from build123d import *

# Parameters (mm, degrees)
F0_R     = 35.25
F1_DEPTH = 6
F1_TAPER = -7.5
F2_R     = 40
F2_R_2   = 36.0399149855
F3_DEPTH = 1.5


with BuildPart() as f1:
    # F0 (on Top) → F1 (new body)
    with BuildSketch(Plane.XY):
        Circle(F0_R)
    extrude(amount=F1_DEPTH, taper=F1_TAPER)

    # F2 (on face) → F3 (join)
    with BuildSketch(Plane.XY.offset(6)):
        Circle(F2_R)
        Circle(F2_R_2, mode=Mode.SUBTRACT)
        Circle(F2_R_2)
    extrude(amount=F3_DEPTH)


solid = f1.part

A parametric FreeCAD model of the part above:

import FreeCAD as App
import Part
import Sketcher

V = App.Vector
Q = App.Units.Quantity

doc = App.newDocument("Part")
params = doc.addObject("Spreadsheet::Sheet", "Params")
for row, (alias, value) in enumerate([
    ("sketch1_diameter", "70.5 mm"),
    ("pad1_length", "6 mm"),
    ("pad1_taper", "7.5 deg"),
    ("sketch2_diameter", "80 mm"),
    ("pad2_length", "1.5 mm"),
], start=1):
    params.set(f"A{row}", alias)
    params.set(f"B{row}", "=" + value)
    params.setAlias(f"B{row}", alias)

body = doc.addObject("PartDesign::Body", "Body")

# Sketch on XY plane
sketch1 = body.newObject("Sketcher::SketchObject", "Sketch")
sketch1.AttachmentSupport = (doc.getObject("XY_Plane"), [""])
sketch1.MapMode = "FlatFace"
sketch1.addGeometry(Part.Circle(V(0, 0, 0), V(0, 0, 1), 35), False)
sketch1.addConstraint(Sketcher.Constraint("Coincident", 0, 3, -1, 1))
sketch1.addConstraint(Sketcher.Constraint("Diameter", 0, Q("70.5 mm")))
sketch1.setExpression("Constraints[1]", "Params.sketch1_diameter")
pad1 = body.newObject("PartDesign::Pad", "Pad")
pad1.Profile = sketch1
pad1.setExpression("Length", "Params.pad1_length")
pad1.setExpression("TaperAngle", "Params.pad1_taper")

# Sketch on XY plane
sketch2 = body.newObject("Sketcher::SketchObject", "Sketch001")
sketch2.AttachmentSupport = (doc.getObject("XY_Plane"), [""])
sketch2.MapMode = "FlatFace"
sketch2.AttachmentOffset = App.Placement(V(0, 0, 6), App.Rotation())
sketch2.addGeometry(Part.Circle(V(0, 0, 0), V(0, 0, 1), 40), False)
sketch2.addConstraint(Sketcher.Constraint("Coincident", 0, 3, -1, 1))
sketch2.addConstraint(Sketcher.Constraint("Diameter", 0, Q("80 mm")))
sketch2.setExpression("Constraints[1]", "Params.sketch2_diameter")
pad2 = body.newObject("PartDesign::Pad", "Pad001")
pad2.Profile = sketch2
pad2.setExpression("Length", "Params.pad2_length")

doc.recompute()
